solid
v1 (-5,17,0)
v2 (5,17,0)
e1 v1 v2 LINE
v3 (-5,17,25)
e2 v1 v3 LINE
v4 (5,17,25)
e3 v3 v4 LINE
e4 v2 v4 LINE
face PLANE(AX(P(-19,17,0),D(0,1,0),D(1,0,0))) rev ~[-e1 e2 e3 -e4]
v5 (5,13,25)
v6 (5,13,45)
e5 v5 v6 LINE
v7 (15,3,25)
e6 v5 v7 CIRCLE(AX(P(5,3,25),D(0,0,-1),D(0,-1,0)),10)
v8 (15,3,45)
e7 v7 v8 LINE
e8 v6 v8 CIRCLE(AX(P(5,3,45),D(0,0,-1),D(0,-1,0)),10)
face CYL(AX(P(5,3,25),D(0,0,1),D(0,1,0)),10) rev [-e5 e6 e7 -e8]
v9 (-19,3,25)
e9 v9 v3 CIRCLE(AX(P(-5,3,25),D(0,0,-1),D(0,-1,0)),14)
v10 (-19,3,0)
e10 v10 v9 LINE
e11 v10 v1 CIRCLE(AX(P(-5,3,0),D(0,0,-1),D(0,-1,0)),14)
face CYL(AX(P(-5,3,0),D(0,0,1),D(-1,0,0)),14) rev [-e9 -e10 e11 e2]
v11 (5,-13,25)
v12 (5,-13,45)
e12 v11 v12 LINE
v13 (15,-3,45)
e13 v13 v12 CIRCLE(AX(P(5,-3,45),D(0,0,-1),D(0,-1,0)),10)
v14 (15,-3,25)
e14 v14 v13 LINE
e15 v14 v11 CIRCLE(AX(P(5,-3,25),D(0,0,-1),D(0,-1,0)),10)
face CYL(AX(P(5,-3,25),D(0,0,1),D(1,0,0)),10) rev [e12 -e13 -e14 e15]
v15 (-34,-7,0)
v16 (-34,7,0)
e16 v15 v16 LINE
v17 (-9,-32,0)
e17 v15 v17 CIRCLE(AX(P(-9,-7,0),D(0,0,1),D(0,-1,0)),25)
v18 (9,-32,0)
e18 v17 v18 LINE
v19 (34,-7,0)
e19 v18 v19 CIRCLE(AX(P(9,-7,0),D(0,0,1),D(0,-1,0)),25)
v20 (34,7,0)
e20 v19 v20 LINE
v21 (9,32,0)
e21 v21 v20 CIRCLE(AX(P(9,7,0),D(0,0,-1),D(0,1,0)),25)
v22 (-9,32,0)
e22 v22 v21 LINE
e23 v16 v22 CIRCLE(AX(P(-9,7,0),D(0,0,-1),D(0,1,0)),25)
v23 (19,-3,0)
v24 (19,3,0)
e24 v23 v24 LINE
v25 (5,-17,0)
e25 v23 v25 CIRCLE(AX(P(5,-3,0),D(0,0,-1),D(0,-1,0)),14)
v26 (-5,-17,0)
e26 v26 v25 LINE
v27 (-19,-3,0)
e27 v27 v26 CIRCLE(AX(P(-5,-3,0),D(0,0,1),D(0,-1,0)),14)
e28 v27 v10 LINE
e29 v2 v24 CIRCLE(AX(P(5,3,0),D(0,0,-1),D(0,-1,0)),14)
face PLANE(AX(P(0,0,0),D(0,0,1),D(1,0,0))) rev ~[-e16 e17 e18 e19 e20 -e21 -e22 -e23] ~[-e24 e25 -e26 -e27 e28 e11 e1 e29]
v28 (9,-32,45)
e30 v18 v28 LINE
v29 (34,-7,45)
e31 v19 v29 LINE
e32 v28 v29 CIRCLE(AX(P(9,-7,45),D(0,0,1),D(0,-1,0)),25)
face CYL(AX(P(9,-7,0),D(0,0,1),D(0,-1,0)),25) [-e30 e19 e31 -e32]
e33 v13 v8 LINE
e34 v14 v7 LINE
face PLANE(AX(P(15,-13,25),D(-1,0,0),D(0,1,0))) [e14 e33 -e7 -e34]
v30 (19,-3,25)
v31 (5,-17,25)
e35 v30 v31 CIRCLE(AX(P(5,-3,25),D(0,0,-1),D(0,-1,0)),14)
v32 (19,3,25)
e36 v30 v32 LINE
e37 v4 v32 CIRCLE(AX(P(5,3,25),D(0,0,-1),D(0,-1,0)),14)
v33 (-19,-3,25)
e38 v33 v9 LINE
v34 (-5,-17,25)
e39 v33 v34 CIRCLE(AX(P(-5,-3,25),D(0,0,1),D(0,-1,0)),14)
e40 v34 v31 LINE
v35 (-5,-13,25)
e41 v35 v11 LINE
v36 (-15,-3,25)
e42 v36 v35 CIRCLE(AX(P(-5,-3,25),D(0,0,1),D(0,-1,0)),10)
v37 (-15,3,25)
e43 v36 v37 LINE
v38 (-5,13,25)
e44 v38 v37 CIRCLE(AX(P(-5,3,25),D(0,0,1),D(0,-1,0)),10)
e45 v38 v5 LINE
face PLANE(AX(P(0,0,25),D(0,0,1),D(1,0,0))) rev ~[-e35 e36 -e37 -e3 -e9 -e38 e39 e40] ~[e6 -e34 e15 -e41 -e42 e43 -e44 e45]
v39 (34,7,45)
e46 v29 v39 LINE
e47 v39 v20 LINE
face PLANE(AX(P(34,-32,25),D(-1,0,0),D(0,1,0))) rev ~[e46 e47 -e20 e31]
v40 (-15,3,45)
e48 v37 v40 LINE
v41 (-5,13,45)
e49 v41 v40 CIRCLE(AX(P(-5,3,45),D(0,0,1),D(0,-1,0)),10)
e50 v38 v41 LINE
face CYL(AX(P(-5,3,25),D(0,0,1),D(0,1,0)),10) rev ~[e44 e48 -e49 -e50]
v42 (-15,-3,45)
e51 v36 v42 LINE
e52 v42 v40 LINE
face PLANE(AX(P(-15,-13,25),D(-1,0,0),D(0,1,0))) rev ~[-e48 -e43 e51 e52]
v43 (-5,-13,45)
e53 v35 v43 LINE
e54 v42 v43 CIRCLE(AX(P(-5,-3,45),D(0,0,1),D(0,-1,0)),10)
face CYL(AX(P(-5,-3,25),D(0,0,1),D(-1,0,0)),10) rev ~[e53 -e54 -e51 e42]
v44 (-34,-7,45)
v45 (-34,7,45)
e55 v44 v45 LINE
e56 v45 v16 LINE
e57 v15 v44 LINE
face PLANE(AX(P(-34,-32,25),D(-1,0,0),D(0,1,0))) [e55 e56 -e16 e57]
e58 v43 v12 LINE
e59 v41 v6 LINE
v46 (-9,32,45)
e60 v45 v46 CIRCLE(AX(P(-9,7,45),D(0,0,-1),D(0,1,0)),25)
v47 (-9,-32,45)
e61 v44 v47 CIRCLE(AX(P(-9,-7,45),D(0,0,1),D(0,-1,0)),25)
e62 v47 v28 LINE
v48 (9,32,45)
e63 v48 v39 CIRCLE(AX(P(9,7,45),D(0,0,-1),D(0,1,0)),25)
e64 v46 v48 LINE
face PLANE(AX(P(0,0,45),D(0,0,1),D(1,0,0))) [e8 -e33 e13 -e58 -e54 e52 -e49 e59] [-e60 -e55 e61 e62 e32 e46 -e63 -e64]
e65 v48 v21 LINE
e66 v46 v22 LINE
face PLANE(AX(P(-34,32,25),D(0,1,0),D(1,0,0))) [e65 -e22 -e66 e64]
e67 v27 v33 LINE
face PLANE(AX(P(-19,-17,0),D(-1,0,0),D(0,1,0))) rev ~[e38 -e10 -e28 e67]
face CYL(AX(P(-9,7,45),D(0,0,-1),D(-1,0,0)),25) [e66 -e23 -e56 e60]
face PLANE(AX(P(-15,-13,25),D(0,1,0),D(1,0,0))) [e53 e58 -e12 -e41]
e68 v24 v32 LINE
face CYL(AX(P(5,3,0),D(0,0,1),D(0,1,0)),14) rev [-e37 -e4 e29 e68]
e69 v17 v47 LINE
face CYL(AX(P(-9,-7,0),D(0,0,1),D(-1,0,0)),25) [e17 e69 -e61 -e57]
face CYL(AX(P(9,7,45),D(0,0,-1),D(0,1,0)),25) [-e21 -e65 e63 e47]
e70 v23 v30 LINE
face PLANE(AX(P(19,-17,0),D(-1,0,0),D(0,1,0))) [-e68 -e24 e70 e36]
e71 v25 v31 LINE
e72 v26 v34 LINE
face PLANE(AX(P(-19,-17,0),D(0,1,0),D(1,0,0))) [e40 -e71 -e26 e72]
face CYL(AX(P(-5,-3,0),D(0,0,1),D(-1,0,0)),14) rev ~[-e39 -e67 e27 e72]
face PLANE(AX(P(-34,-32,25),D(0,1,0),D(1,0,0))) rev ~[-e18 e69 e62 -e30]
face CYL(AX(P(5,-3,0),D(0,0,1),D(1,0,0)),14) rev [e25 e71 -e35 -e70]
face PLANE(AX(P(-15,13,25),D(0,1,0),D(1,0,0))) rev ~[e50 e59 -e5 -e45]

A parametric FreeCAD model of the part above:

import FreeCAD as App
import Part
import Sketcher

V = App.Vector


def edges_at(feature, points):
    """Names of the edges that pass closest to the given points."""
    edges = feature.Shape.Edges
    near = lambda p: min(range(len(edges)), key=lambda i: edges[i].distToShape(Part.Vertex(*p))[0])
    return sorted({f"Edge{near(p) + 1}" for p in points})

doc = App.newDocument("Part")
body = doc.addObject("PartDesign::Body", "Body")

# Sketch on XY plane
sketch1 = body.newObject("Sketcher::SketchObject", "Sketch")
sketch1.AttachmentSupport = (doc.getObject("XY_Plane"), [""])
sketch1.MapMode = "FlatFace"
sketch1.addGeometry([
    Part.LineSegment(V(-34, 32, 0), V(-34, -32, 0)),  # 0
    Part.LineSegment(V(-34, -32, 0), V(34, -32, 0)),  # 1
    Part.LineSegment(V(34, -32, 0), V(34, 32, 0)),  # 2
    Part.LineSegment(V(34, 32, 0), V(-34, 32, 0)),  # 3
    Part.LineSegment(V(19, -17, 0), V(-19, -17, 0)),  # 4
    Part.LineSegment(V(-19, -17, 0), V(-19, 17, 0)),  # 5
    Part.LineSegment(V(-19, 17, 0), V(19, 17, 0)),  # 6
    Part.LineSegment(V(19, 17, 0), V(19, -17, 0)),  # 7
], False)
sketch1.addConstraint([
    Sketcher.Constraint("Coincident", 0, 2, 1, 1),
    Sketcher.Constraint("Coincident", 1, 2, 2, 1),
    Sketcher.Constraint("Coincident", 2, 2, 3, 1),
    Sketcher.Constraint("Coincident", 3, 2, 0, 1),
    Sketcher.Constraint("Coincident", 4, 2, 5, 1),
    Sketcher.Constraint("Coincident", 5, 2, 6, 1),
    Sketcher.Constraint("Coincident", 6, 2, 7, 1),
    Sketcher.Constraint("Coincident", 7, 2, 4, 1),
    Sketcher.Constraint("Vertical", 0),
    Sketcher.Constraint("Horizontal", 1),
    Sketcher.Constraint("Vertical", 2),
    Sketcher.Constraint("Horizontal", 3),
    Sketcher.Constraint("Horizontal", 4),
    Sketcher.Constraint("Vertical", 5),
    Sketcher.Constraint("Horizontal", 6),
    Sketcher.Constraint("Vertical", 7),
    Sketcher.Constraint("Symmetric", 0, 2, 2, 2, -1, 1),
    Sketcher.Constraint("Symmetric", 4, 2, 6, 2, -1, 1),
    Sketcher.Constraint("DistanceX", 1, 1, 1, 2, 68.0),
    Sketcher.Constraint("DistanceX", 4, 2, 4, 1, 38.0),
    Sketcher.Constraint("DistanceY", 0, 2, 0, 1, 64.0),
    Sketcher.Constraint("DistanceY", 5, 1, 5, 2, 34.0),
])
pad1 = body.newObject("PartDesign::Pad", "Pad")
pad1.Profile = sketch1
pad1.Length = 25

# Sketch on XY plane
sketch2 = body.newObject("Sketcher::SketchObject", "Sketch001")
sketch2.AttachmentSupport = (doc.getObject("XY_Plane"), [""])
sketch2.MapMode = "FlatFace"
sketch2.AttachmentOffset = App.Placement(V(0, 0, 25), App.Rotation())
sketch2.addGeometry([
    Part.LineSegment(V(-34, 32, 0), V(-34, -32, 0)),  # 0
    Part.LineSegment(V(-34, -32, 0), V(34, -32, 0)),  # 1
    Part.LineSegment(V(34, -32, 0), V(34, 32, 0)),  # 2
    Part.LineSegment(V(34, 32, 0), V(-34, 32, 0)),  # 3
    Part.LineSegment(V(15, -13, 0), V(-15, -13, 0)),  # 4
    Part.LineSegment(V(-15, -13, 0), V(-15, 13, 0)),  # 5
    Part.LineSegment(V(-15, 13, 0), V(15, 13, 0)),  # 6
    Part.LineSegment(V(15, 13, 0), V(15, -13, 0)),  # 7
], False)
sketch2.addConstraint([
    Sketcher.Constraint("Coincident", 0, 2, 1, 1),
    Sketcher.Constraint("Coincident", 1, 2, 2, 1),
    Sketcher.Constraint("Coincident", 2, 2, 3, 1),
    Sketcher.Constraint("Coincident", 3, 2, 0, 1),
    Sketcher.Constraint("Coincident", 4, 2, 5, 1),
    Sketcher.Constraint("Coincident", 5, 2, 6, 1),
    Sketcher.Constraint("Coincident", 6, 2, 7, 1),
    Sketcher.Constraint("Coincident", 7, 2, 4, 1),
    Sketcher.Constraint("Vertical", 0),
    Sketcher.Constraint("Horizontal", 1),
    Sketcher.Constraint("Vertical", 2),
    Sketcher.Constraint("Horizontal", 3),
    Sketcher.Constraint("Horizontal", 4),
    Sketcher.Constraint("Vertical", 5),
    Sketcher.Constraint("Horizontal", 6),
    Sketcher.Constraint("Vertical", 7),
    Sketcher.Constraint("Symmetric", 0, 2, 2, 2, -1, 1),
    Sketcher.Constraint("Symmetric", 4, 2, 6, 2, -1, 1),
    Sketcher.Constraint("DistanceX", 1, 1, 1, 2, 68.0),
    Sketcher.Constraint("DistanceX", 4, 2, 4, 1, 30.0),
    Sketcher.Constraint("DistanceY", 0, 2, 0, 1, 64.0),
    Sketcher.Constraint("DistanceY", 5, 1, 5, 2, 26.0),
])
pad2 = body.newObject("PartDesign::Pad", "Pad001")
pad2.Profile = sketch2
pad2.Length = 20
doc.recompute()

fillet = body.newObject("PartDesign::Fillet", "Fillet")
fillet.Base = (pad2, edges_at(pad2, [
    (-15, 13, 35),
    (-15, -13, 35),
    (15, -13, 35),
    (15, 13, 35),
]))
fillet.Radius = 10
doc.recompute()

fillet2 = body.newObject("PartDesign::Fillet", "Fillet001")
fillet2.Base = (fillet, edges_at(fillet, [
    (19, -17, 12.5),
    (19, 17, 12.5),
    (-19, 17, 12.5),
    (-19, -17, 12.5),
]))
fillet2.Radius = 14
doc.recompute()

fillet3 = body.newObject("PartDesign::Fillet", "Fillet002")
fillet3.Base = (fillet2, edges_at(fillet2, [
    (34, 32, 22.5),
    (-34, 32, 22.5),
    (34, -32, 22.5),
    (-34, -32, 22.5),
]))
fillet3.Radius = 25

doc.recompute()
